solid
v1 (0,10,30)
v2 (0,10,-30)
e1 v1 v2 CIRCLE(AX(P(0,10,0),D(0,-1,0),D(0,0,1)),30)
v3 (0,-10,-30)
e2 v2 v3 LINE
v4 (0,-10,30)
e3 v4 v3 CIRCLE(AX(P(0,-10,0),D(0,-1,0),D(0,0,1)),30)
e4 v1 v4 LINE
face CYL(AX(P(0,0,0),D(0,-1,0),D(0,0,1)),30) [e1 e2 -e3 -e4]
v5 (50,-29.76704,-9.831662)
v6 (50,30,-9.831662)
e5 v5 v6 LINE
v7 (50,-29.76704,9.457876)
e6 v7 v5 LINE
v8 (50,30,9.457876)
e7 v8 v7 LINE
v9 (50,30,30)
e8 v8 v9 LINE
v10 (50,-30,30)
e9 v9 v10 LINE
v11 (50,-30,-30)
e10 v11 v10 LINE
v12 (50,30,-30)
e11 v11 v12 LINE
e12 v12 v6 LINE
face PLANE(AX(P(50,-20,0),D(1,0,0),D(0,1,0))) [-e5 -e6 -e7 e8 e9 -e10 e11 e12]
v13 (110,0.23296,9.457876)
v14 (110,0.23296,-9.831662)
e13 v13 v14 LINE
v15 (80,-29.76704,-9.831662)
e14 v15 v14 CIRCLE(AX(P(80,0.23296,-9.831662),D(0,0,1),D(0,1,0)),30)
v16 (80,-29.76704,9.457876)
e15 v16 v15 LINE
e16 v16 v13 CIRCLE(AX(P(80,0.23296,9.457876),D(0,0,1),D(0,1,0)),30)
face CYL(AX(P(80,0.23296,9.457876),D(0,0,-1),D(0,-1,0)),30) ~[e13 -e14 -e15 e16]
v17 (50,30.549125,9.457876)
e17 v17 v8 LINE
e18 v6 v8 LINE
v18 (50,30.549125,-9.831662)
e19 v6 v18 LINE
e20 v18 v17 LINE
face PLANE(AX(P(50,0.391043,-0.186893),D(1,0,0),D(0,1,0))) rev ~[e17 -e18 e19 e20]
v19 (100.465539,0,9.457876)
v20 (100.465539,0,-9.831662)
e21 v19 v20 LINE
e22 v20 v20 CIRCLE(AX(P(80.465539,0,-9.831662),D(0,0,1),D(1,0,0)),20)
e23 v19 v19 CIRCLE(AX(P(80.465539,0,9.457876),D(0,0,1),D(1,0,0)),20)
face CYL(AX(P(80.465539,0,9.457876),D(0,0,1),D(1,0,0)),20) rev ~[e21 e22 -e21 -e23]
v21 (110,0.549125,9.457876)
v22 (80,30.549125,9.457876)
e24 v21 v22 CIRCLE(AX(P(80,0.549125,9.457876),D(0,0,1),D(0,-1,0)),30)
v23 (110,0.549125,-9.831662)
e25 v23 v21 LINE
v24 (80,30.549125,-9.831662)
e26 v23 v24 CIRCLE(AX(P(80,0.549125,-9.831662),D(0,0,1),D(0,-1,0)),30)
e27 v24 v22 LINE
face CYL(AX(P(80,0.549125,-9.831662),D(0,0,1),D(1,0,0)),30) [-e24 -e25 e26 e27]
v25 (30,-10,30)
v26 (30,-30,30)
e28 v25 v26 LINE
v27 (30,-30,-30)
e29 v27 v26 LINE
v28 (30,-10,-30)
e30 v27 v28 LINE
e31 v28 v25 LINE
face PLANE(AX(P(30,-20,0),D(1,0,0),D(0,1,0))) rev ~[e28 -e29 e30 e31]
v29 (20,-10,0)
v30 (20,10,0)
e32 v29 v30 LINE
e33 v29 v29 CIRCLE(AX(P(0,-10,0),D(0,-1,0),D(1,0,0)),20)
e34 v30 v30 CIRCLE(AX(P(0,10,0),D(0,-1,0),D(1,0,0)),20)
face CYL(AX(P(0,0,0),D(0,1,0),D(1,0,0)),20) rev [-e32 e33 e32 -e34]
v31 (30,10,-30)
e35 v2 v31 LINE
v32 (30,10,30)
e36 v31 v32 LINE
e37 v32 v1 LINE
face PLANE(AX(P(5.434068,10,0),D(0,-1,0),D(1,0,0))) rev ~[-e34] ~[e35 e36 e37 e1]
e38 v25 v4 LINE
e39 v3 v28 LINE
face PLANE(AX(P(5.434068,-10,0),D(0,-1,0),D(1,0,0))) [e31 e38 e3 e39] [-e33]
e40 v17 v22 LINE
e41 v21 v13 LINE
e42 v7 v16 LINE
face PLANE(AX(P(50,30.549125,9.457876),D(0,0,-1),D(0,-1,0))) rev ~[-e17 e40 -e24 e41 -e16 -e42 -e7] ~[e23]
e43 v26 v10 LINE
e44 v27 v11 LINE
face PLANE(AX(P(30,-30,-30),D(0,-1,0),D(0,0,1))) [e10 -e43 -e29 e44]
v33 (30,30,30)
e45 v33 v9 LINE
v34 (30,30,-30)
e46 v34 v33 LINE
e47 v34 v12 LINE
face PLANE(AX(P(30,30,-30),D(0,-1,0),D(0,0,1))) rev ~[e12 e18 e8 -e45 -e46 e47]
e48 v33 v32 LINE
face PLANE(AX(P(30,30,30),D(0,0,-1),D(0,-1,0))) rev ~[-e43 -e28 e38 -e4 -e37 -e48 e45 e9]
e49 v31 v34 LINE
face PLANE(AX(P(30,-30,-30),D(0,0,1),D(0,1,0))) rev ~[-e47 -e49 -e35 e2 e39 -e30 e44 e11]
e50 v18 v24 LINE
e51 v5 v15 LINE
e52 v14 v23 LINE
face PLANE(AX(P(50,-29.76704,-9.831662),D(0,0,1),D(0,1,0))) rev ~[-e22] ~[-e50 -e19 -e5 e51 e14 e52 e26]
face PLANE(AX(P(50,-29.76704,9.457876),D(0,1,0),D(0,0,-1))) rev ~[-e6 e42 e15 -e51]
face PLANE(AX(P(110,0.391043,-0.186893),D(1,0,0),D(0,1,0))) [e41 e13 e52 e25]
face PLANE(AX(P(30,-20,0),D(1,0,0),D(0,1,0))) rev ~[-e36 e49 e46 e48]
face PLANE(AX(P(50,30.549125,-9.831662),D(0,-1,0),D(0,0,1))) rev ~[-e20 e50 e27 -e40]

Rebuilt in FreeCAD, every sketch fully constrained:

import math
import FreeCAD as App
import Part
import Sketcher
from FreeCAD import Vector


def edges_at(feature, points):
    """Names of the edges that pass closest to the given points."""
    edges = feature.Shape.Edges
    near = lambda p: min(range(len(edges)), key=lambda i: edges[i].distToShape(Part.Vertex(*p))[0])
    return sorted({f"Edge{near(p) + 1}" for p in points})


def add_polygon(sketch, points):
    """Adds a closed chain of lines whose ends are joined by coincident constraints."""
    first, n = sketch.GeometryCount, len(points)
    for a, b in zip(points, points[1:] + points[:1]):
        sketch.addGeometry(Part.LineSegment(App.Vector(*a, 0), App.Vector(*b, 0)), False)
    for i in range(n):
        sketch.addConstraint(Sketcher.Constraint("Coincident", first + i, 2, first + (i + 1) % n, 1))

doc = App.newDocument("Part")
body = doc.addObject("PartDesign::Body", "Body")

# Sketch on XZ plane
sketch1 = body.newObject("Sketcher::SketchObject", "Sketch")
sketch1.AttachmentSupport = (doc.getObject("XZ_Plane"), [""])
sketch1.MapMode = "FlatFace"
sketch1.addGeometry([
    Part.LineSegment(Vector(30, 30, 0), Vector(0, 30, 0)),  # 0
    Part.ArcOfCircle(Part.Circle(Vector(0, 0, 0), Vector(0, 0, 1), 30), math.radians(90), math.radians(270)),  # 1
    Part.LineSegment(Vector(0, -30, 0), Vector(30, -30, 0)),  # 2
    Part.LineSegment(Vector(30, -30, 0), Vector(30, 30, 0)),  # 3
    Part.Circle(Vector(0, 0, 0), Vector(0, 0, 1), 20),  # 4
], False)
sketch1.addConstraint([
    Sketcher.Constraint("Tangent", 0, 2, 1, 1),
    Sketcher.Constraint("Tangent", 1, 2, 2, 1),
    Sketcher.Constraint("Coincident", 2, 2, 3, 1),
    Sketcher.Constraint("Coincident", 3, 2, 0, 1),
    Sketcher.Constraint("Horizontal", 0),
    Sketcher.Constraint("Horizontal", 2),
    Sketcher.Constraint("Vertical", 3),
    Sketcher.Constraint("Coincident", 1, 3, -1, 1),
    Sketcher.Constraint("Coincident", 4, 3, -1, 1),
    Sketcher.Constraint("Diameter", 4, 40.0),
    Sketcher.Constraint("Radius", 1, 30.0),
    Sketcher.Constraint("DistanceX", 0, 2, 0, 1, 30.0),
])
pad1 = body.newObject("PartDesign::Pad", "Pad")
pad1.Profile = sketch1
pad1.Type = "TwoLengths"
pad1.Length = 10
pad1.Length2 = 10

# Sketch on YZ plane
sketch2 = body.newObject("Sketcher::SketchObject", "Sketch001")
sketch2.AttachmentSupport = (doc.getObject("YZ_Plane"), [""])
sketch2.MapMode = "FlatFace"
sketch2.AttachmentOffset = App.Placement(Vector(0, 0, 30), App.Rotation())
add_polygon(sketch2, [(-30, 30), (-30, -30), (30, -30), (30, 30)])  # lines 0-3
sketch2.addConstraint([
    Sketcher.Constraint("Vertical", 0),
    Sketcher.Constraint("Horizontal", 1),
    Sketcher.Constraint("Vertical", 2),
    Sketcher.Constraint("Horizontal", 3),
    Sketcher.Constraint("Symmetric", 0, 2, 2, 2, -1, 1),
    Sketcher.Constraint("Equal", 3, 0),
    Sketcher.Constraint("DistanceX", 1, 1, 1, 2, 60.0),
])
pad2 = body.newObject("PartDesign::Pad", "Pad001")
pad2.Profile = sketch2
pad2.Length = 20

# Sketch on YZ plane
sketch3 = body.newObject("Sketcher::SketchObject", "Sketch002")
sketch3.AttachmentSupport = (doc.getObject("YZ_Plane"), [""])
sketch3.MapMode = "FlatFace"
sketch3.AttachmentOffset = App.Placement(Vector(0, 0, 50), App.Rotation())
add_polygon(sketch3, [(-29.76704, 9.457876), (-29.76704, -9.831662), (30.549125, -9.831662), (30.549125, 9.457876)])  # lines 0-3
sketch3.addConstraint([
    Sketcher.Constraint("Vertical", 0),
    Sketcher.Constraint("Horizontal", 1),
    Sketcher.Constraint("Vertical", 2),
    Sketcher.Constraint("Horizontal", 3),
    Sketcher.Constraint("DistanceX", 1, 1, 1, 2, 60.316165),
    Sketcher.Constraint("DistanceY", 0, 2, 0, 1, 19.289538),
    Sketcher.Constraint("DistanceX", 0, 2, -1, 1, 29.76704),
    Sketcher.Constraint("DistanceY", 0, 2, -1, 1, 9.831662),
])
pad3 = body.newObject("PartDesign::Pad", "Pad002")
pad3.Profile = sketch3
pad3.Length = 60

# Sketch on XY plane
sketch4 = body.newObject("Sketcher::SketchObject", "Sketch003")
sketch4.AttachmentSupport = (doc.getObject("XY_Plane"), [""])
sketch4.MapMode = "FlatFace"
sketch4.AttachmentOffset = App.Placement(Vector(0, 0, 9.457876), App.Rotation())
sketch4.addGeometry(Part.Circle(Vector(80.465539, 0, 0), Vector(0, 0, 1), 20), False)
sketch4.addConstraint([
    Sketcher.Constraint("PointOnObject", 0, 3, -1),
    Sketcher.Constraint("Diameter", 0, 40.0),
    Sketcher.Constraint("DistanceX", -1, 1, 0, 3, 80.465539),
])
pocket1 = body.newObject("PartDesign::Pocket", "Pocket")
pocket1.Profile = sketch4
pocket1.Length = 25
doc.recompute()

fillet = body.newObject("PartDesign::Fillet", "Fillet")
fillet.Base = (pocket1, edges_at(pocket1, [(110, -29.767, -0.187), (110, 30.549, -0.187)]))
fillet.Radius = 30

doc.recompute()
